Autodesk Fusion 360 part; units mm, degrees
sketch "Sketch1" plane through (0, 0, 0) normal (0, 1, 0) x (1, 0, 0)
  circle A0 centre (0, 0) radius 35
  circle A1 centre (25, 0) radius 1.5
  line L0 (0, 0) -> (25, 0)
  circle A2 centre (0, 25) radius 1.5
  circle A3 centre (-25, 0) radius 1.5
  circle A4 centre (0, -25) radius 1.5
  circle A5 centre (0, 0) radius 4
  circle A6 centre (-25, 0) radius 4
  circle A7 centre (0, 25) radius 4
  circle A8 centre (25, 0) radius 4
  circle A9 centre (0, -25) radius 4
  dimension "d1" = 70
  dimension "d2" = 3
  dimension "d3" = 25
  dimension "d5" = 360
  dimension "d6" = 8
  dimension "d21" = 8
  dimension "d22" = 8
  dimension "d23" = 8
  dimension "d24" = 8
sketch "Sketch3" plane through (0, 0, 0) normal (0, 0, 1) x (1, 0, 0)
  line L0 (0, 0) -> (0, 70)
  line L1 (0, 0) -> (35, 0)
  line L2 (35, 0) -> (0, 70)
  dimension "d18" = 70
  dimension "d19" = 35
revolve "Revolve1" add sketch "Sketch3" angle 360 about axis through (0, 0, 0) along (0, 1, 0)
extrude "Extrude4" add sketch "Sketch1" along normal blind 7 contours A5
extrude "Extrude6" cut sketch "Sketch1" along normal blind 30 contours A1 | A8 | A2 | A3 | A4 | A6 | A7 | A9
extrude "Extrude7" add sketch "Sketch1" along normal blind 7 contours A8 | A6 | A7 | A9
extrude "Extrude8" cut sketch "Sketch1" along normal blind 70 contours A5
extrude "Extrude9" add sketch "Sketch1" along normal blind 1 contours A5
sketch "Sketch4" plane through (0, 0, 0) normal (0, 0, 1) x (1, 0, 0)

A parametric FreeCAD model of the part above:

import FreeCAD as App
import Part
import Sketcher
Q = App.Units.Quantity

doc = App.newDocument("Part")
body = doc.addObject("PartDesign::Body", "Body")

sketch1 = doc.addObject("Sketcher::SketchObject", "Sketch")
body.addObject(sketch1)
sketch1.AttachmentSupport = (doc.XY_Plane, [""])
sketch1.MapMode = "FlatFace"
sketch1.addGeometry(Part.LineSegment(App.Vector(0, 70, 0), App.Vector(0, 0, 0)), False)
sketch1.addGeometry(Part.LineSegment(App.Vector(0, 0, 0), App.Vector(35, 0, 0)), False)
sketch1.addGeometry(Part.LineSegment(App.Vector(35, 0, 0), App.Vector(0, 70, 0)), False)
sketch1.addConstraint(Sketcher.Constraint("Coincident", 0, 2, 1, 1))
sketch1.addConstraint(Sketcher.Constraint("Coincident", 1, 2, 2, 1))
sketch1.addConstraint(Sketcher.Constraint("Coincident", 2, 2, 0, 1))
sketch1.addConstraint(Sketcher.Constraint("Vertical", 0))
sketch1.addConstraint(Sketcher.Constraint("Horizontal", 1))
sketch1.addConstraint(Sketcher.Constraint("Coincident", 0, 2, -1, 1))
sketch1.addConstraint(Sketcher.Constraint("DistanceX", 1, 1, 1, 2, Q("35 mm")))
sketch1.addConstraint(Sketcher.Constraint("DistanceY", 0, 2, 0, 1, Q("70 mm")))
revolution = doc.addObject("PartDesign::Revolution", "Revolution")
body.addObject(revolution)
revolution.Profile = sketch1
revolution.ReferenceAxis = (sketch1, ["V_Axis"])
revolution.Angle = 360

sketch2 = doc.addObject("Sketcher::SketchObject", "Sketch001")
body.addObject(sketch2)
sketch2.AttachmentSupport = (doc.XZ_Plane, [""])
sketch2.MapMode = "FlatFace"
sketch2.addGeometry(Part.Circle(App.Vector(0, 0, 0), App.Vector(0, 0, 1), 4), False)
sketch2.addConstraint(Sketcher.Constraint("Coincident", 0, 3, -1, 1))
sketch2.addConstraint(Sketcher.Constraint("Diameter", 0, Q("8 mm")))
pad1 = doc.addObject("PartDesign::Pad", "Pad")
body.addObject(pad1)
pad1.Profile = sketch2
pad1.Length = 7
pad1.Reversed = True

sketch3 = doc.addObject("Sketcher::SketchObject", "Sketch002")
body.addObject(sketch3)
sketch3.AttachmentSupport = (doc.XZ_Plane, [""])
sketch3.MapMode = "FlatFace"
sketch3.addGeometry(Part.Circle(App.Vector(25, 0, 0), App.Vector(0, 0, 1), 4), False)
sketch3.addGeometry(Part.Circle(App.Vector(0, -25, 0), App.Vector(0, 0, 1), 4), False)
sketch3.addGeometry(Part.Circle(App.Vector(-25, 0, 0), App.Vector(0, 0, 1), 4), False)
sketch3.addGeometry(Part.Circle(App.Vector(0, 25, 0), App.Vector(0, 0, 1), 4), False)
sketch3.addConstraint(Sketcher.Constraint("Equal", 0, 1))
sketch3.addConstraint(Sketcher.Constraint("Equal", 1, 2))
sketch3.addConstraint(Sketcher.Constraint("Equal", 2, 3))
sketch3.addConstraint(Sketcher.Constraint("Symmetric", 0, 3, 2, 3, -1, 1))
sketch3.addConstraint(Sketcher.Constraint("Symmetric", 1, 3, 3, 3, -1, 1))
sketch3.addConstraint(Sketcher.Constraint("PointOnObject", 0, 3, -1))
sketch3.addConstraint(Sketcher.Constraint("PointOnObject", 1, 3, -2))
sketch3.addConstraint(Sketcher.Constraint("Diameter", 0, Q("8 mm")))
sketch3.addConstraint(Sketcher.Constraint("DistanceX", -1, 1, 0, 3, Q("25 mm")))
sketch3.addConstraint(Sketcher.Constraint("DistanceY", 1, 3, -1, 1, Q("25 mm")))
pocket1 = doc.addObject("PartDesign::Pocket", "Pocket")
body.addObject(pocket1)
pocket1.Profile = sketch3
pocket1.Length = 30

sketch4 = doc.addObject("Sketcher::SketchObject", "Sketch003")
body.addObject(sketch4)
sketch4.AttachmentSupport = (doc.XZ_Plane, [""])
sketch4.MapMode = "FlatFace"
sketch4.addGeometry(Part.Circle(App.Vector(25, 0, 0), App.Vector(0, 0, 1), 4), False)
sketch4.addGeometry(Part.Circle(App.Vector(25, 0, 0), App.Vector(0, 0, 1), 1.5), False)
sketch4.addGeometry(Part.Circle(App.Vector(-25, 0, 0), App.Vector(0, 0, 1), 4), False)
sketch4.addGeometry(Part.Circle(App.Vector(-25, 0, 0), App.Vector(0, 0, 1), 1.5), False)
sketch4.addGeometry(Part.Circle(App.Vector(0, -25, 0), App.Vector(0, 0, 1), 4), False)
sketch4.addGeometry(Part.Circle(App.Vector(0, -25, 0), App.Vector(0, 0, 1), 1.5), False)
sketch4.addGeometry(Part.Circle(App.Vector(0, 25, 0), App.Vector(0, 0, 1), 4), False)
sketch4.addGeometry(Part.Circle(App.Vector(0, 25, 0), App.Vector(0, 0, 1), 1.5), False)
sketch4.addConstraint(Sketcher.Constraint("Coincident", 1, 3, 0, 3))
sketch4.addConstraint(Sketcher.Constraint("Coincident", 3, 3, 2, 3))
sketch4.addConstraint(Sketcher.Constraint("Coincident", 5, 3, 4, 3))
sketch4.addConstraint(Sketcher.Constraint("Coincident", 7, 3, 6, 3))
sketch4.addConstraint(Sketcher.Constraint("Equal", 0, 2))
sketch4.addConstraint(Sketcher.Constraint("Equal", 1, 3))
sketch4.addConstraint(Sketcher.Constraint("Equal", 2, 4))
sketch4.addConstraint(Sketcher.Constraint("Equal", 3, 5))
sketch4.addConstraint(Sketcher.Constraint("Equal", 4, 6))
sketch4.addConstraint(Sketcher.Constraint("Equal", 5, 7))
sketch4.addConstraint(Sketcher.Constraint("Symmetric", 0, 3, 2, 3, -1, 1))
sketch4.addConstraint(Sketcher.Constraint("Symmetric", 4, 3, 6, 3, -1, 1))
sketch4.addConstraint(Sketcher.Constraint("PointOnObject", 0, 3, -1))
sketch4.addConstraint(Sketcher.Constraint("PointOnObject", 4, 3, -2))
sketch4.addConstraint(Sketcher.Constraint("Diameter", 0, Q("8 mm")))
sketch4.addConstraint(Sketcher.Constraint("Diameter", 1, Q("3 mm")))
sketch4.addConstraint(Sketcher.Constraint("DistanceX", -1, 1, 0, 3, Q("25 mm")))
sketch4.addConstraint(Sketcher.Constraint("DistanceY", 4, 3, -1, 1, Q("25 mm")))
pad2 = doc.addObject("PartDesign::Pad", "Pad001")
body.addObject(pad2)
pad2.Profile = sketch4
pad2.Length = 7
pad2.Reversed = True

sketch5 = doc.addObject("Sketcher::SketchObject", "Sketch004")
body.addObject(sketch5)
sketch5.AttachmentSupport = (doc.XZ_Plane, [""])
sketch5.MapMode = "FlatFace"
sketch5.addGeometry(Part.Circle(App.Vector(0, 0, 0), App.Vector(0, 0, 1), 4), False)
sketch5.addConstraint(Sketcher.Constraint("Coincident", 0, 3, -1, 1))
sketch5.addConstraint(Sketcher.Constraint("Diameter", 0, Q("8 mm")))
pocket2 = doc.addObject("PartDesign::Pocket", "Pocket001")
body.addObject(pocket2)
pocket2.Profile = sketch5
pocket2.Length = 70

sketch6 = doc.addObject("Sketcher::SketchObject", "Sketch005")
body.addObject(sketch6)
sketch6.AttachmentSupport = (doc.XZ_Plane, [""])
sketch6.MapMode = "FlatFace"
sketch6.addGeometry(Part.Circle(App.Vector(0, 0, 0), App.Vector(0, 0, 1), 4), False)
sketch6.addConstraint(Sketcher.Constraint("Coincident", 0, 3, -1, 1))
sketch6.addConstraint(Sketcher.Constraint("Diameter", 0, Q("8 mm")))
pad3 = doc.addObject("PartDesign::Pad", "Pad002")
body.addObject(pad3)
pad3.Profile = sketch6
pad3.Length = 1
pad3.Reversed = True

doc.recompute()
